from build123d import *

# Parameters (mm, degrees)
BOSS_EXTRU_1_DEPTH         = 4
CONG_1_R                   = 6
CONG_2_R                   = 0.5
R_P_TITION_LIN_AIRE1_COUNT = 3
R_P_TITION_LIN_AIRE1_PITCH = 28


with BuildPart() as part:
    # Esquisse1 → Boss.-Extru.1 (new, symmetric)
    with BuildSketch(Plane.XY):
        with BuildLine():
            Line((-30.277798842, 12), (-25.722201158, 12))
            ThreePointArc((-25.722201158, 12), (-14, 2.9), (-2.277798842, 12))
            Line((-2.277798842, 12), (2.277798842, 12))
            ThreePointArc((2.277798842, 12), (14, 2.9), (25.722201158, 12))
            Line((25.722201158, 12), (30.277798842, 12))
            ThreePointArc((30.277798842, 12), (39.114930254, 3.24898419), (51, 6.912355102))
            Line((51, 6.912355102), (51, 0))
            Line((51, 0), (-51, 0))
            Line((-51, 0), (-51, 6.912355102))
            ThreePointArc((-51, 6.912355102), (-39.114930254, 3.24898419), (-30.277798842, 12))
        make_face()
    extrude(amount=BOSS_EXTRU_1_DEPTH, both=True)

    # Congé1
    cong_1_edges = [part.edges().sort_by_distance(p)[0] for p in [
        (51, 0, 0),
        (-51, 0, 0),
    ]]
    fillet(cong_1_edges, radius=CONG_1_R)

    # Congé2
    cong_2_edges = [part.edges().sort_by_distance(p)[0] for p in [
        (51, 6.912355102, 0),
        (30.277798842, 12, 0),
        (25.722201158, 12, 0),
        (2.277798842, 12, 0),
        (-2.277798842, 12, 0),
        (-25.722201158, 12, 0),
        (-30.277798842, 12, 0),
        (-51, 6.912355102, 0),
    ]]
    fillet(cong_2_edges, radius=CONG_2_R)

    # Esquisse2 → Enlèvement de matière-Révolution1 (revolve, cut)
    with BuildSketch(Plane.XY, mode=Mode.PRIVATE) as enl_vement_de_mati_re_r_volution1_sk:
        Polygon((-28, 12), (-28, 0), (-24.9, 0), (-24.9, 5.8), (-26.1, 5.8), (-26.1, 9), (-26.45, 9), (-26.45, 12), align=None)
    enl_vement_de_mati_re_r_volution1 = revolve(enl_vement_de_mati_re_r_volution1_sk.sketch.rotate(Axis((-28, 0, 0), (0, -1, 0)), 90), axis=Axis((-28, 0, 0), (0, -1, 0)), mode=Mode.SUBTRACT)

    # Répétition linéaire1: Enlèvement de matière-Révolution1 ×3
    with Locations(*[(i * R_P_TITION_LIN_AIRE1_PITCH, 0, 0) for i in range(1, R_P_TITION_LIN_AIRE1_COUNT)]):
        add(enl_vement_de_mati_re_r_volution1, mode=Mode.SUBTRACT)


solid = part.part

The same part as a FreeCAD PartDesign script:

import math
import FreeCAD as App
import Part
import Sketcher


def edges_at(feature, points):
    """Names of the edges that pass closest to the given points."""
    edges = feature.Shape.Edges
    near = lambda p: min(range(len(edges)), key=lambda i: edges[i].distToShape(Part.Vertex(*p))[0])
    return sorted({f"Edge{near(p) + 1}" for p in points})


def add_polygon(sketch, points):
    """Adds a closed chain of lines whose ends are joined by coincident constraints."""
    first, n = sketch.GeometryCount, len(points)
    for a, b in zip(points, points[1:] + points[:1]):
        sketch.addGeometry(Part.LineSegment(App.Vector(*a, 0), App.Vector(*b, 0)), False)
    for i in range(n):
        sketch.addConstraint(Sketcher.Constraint("Coincident", first + i, 2, first + (i + 1) % n, 1))

doc = App.newDocument("Part")
body = doc.addObject("PartDesign::Body", "Body")

# Sketch on XY plane
sketch1 = doc.addObject("Sketcher::SketchObject", "Sketch")
body.addObject(sketch1)
sketch1.AttachmentSupport = (doc.XY_Plane, [""])
sketch1.MapMode = "FlatFace"
sketch1.addGeometry([
    Part.LineSegment(App.Vector(-25.7, 12, 0), App.Vector(-30.3, 12, 0)),  # 0
    Part.ArcOfCircle(Part.Circle(App.Vector(-42, 15, 0), App.Vector(0, 0, 1), 12.1), math.radians(-138), math.radians(-14)),  # 1
    Part.LineSegment(App.Vector(-51, 6.9, 0), App.Vector(-51, 0, 0)),  # 2
    Part.LineSegment(App.Vector(-51, 0, 0), App.Vector(51, 0, 0)),  # 3
    Part.LineSegment(App.Vector(51, 0, 0), App.Vector(51, 6.9, 0)),  # 4
    Part.ArcOfCircle(Part.Circle(App.Vector(42, 15, 0), App.Vector(0, 0, 1), 12.1), math.radians(-166), math.radians(-42)),  # 5
    Part.LineSegment(App.Vector(30.3, 12, 0), App.Vector(25.7, 12, 0)),  # 6
    Part.ArcOfCircle(Part.Circle(App.Vector(14, 15, 0), App.Vector(0, 0, 1), 12.1), math.radians(-166), math.radians(-14)),  # 7
    Part.LineSegment(App.Vector(2.3, 12, 0), App.Vector(-2.3, 12, 0)),  # 8
    Part.ArcOfCircle(Part.Circle(App.Vector(-14, 15, 0), App.Vector(0, 0, 1), 12.1), math.radians(-166), math.radians(-14)),  # 9
], False)
sketch1.addConstraint([
    Sketcher.Constraint("Coincident", 0, 2, 1, 2),
    Sketcher.Constraint("Coincident", 1, 1, 2, 1),
    Sketcher.Constraint("Coincident", 2, 2, 3, 1),
    Sketcher.Constraint("Coincident", 3, 2, 4, 1),
    Sketcher.Constraint("Coincident", 4, 2, 5, 2),
    Sketcher.Constraint("Coincident", 5, 1, 6, 1),
    Sketcher.Constraint("Coincident", 6, 2, 7, 2),
    Sketcher.Constraint("Coincident", 7, 1, 8, 1),
    Sketcher.Constraint("Coincident", 8, 2, 9, 2),
    Sketcher.Constraint("Coincident", 9, 1, 0, 1),
    Sketcher.Constraint("Horizontal", 0),
    Sketcher.Constraint("Vertical", 2),
    Sketcher.Constraint("Horizontal", 3),
    Sketcher.Constraint("Vertical", 4),
    Sketcher.Constraint("Horizontal", 6),
    Sketcher.Constraint("Horizontal", 8),
    Sketcher.Constraint("Equal", 1, 5),
    Sketcher.Constraint("Equal", 5, 7),
    Sketcher.Constraint("Equal", 7, 9),
    Sketcher.Constraint("Symmetric", 2, 2, 3, 2, -1, 1),
    Sketcher.Constraint("Symmetric", 1, 3, 5, 3, -2),
    Sketcher.Constraint("Symmetric", 7, 3, 9, 3, -2),
    Sketcher.Constraint("Horizontal", 5, 3, 7, 3),
    Sketcher.Constraint("Horizontal", 0, 2, 5, 1),
    Sketcher.Constraint("Horizontal", 6, 2, 7, 1),
    Sketcher.Constraint("Equal", 6, 8),
    Sketcher.Constraint("Radius", 1, 12.1),
    Sketcher.Constraint("DistanceX", 3, 1, 3, 2, 102.0),
    Sketcher.Constraint("DistanceX", 1, 3, -1, 1, 42.0),
    Sketcher.Constraint("DistanceY", -1, 1, 1, 3, 15.0),
    Sketcher.Constraint("DistanceY", -1, 1, 0, 2, 12.0),
])
pad1 = doc.addObject("PartDesign::Pad", "Pad")
body.addObject(pad1)
pad1.Profile = sketch1
pad1.Length = 8
pad1.Midplane = True
doc.recompute()

fillet = doc.addObject("PartDesign::Fillet", "Fillet")
body.addObject(fillet)
fillet.Base = (pad1, edges_at(pad1, [(51, 0, 0), (-51, 0, 0)]))
fillet.Radius = 6
doc.recompute()

fillet2 = doc.addObject("PartDesign::Fillet", "Fillet001")
body.addObject(fillet2)
fillet2.Base = (fillet, edges_at(fillet, [
    (51, 6.912, 0),
    (30.278, 12, 0),
    (25.722, 12, 0),
    (2.278, 12, 0),
    (-2.278, 12, 0),
    (-25.722, 12, 0),
    (-30.278, 12, 0),
    (-51, 6.912, 0),
]))
fillet2.Radius = 0.5

# Sketch on XY plane
sketch2 = doc.addObject("Sketcher::SketchObject", "Sketch001")
body.addObject(sketch2)
sketch2.AttachmentSupport = (doc.XY_Plane, [""])
sketch2.MapMode = "FlatFace"
add_polygon(sketch2, [(-28, 12), (-28, 0), (-24.9, 0), (-24.9, 5.8), (-26.1, 5.8), (-26.1, 9), (-26.45, 9), (-26.45, 12)])  # lines 0-7
sketch2.addGeometry(Part.LineSegment(App.Vector(-28, 12, 0), App.Vector(-28, 0, 0)), True)  # axis
sketch2.addConstraint([
    Sketcher.Constraint("Vertical", 0),
    Sketcher.Constraint("Horizontal", 1),
    Sketcher.Constraint("Vertical", 2),
    Sketcher.Constraint("Horizontal", 3),
    Sketcher.Constraint("Vertical", 4),
    Sketcher.Constraint("Horizontal", 5),
    Sketcher.Constraint("Vertical", 6),
    Sketcher.Constraint("Horizontal", 7),
    Sketcher.Constraint("Vertical", 8),
    Sketcher.Constraint("Coincident", 8, 1, 7, 2),
    Sketcher.Constraint("PointOnObject", 0, 2, -1),
    Sketcher.Constraint("PointOnObject", 8, 2, -1),
    Sketcher.Constraint("DistanceY", 0, 2, 0, 1, 12.0),
    Sketcher.Constraint("DistanceY", 6, 1, 6, 2, 3.0),
    Sketcher.Constraint("DistanceX", 1, 1, 1, 2, 3.1),
    Sketcher.Constraint("DistanceX", 3, 2, 3, 1, 1.2),
    Sketcher.Constraint("DistanceY", 2, 1, 2, 2, 5.8),
    Sketcher.Constraint("DistanceX", 0, 2, -1, 1, 28.0),
    Sketcher.Constraint("DistanceX", 5, 2, 5, 1, 0.35),
])
groove = doc.addObject("PartDesign::Groove", "Groove")
body.addObject(groove)
groove.Profile = sketch2
groove.ReferenceAxis = (sketch2, ["Axis0"])
groove.Angle = 360
doc.recompute()

linearpattern = doc.addObject("PartDesign::LinearPattern", "LinearPattern")
body.addObject(linearpattern)
linearpattern.Originals = [groove]
linearpattern.Direction = (doc.X_Axis, [""])
linearpattern.Mode = "offset"
linearpattern.Offset = 28
linearpattern.Occurrences = 3
body.Tip = linearpattern

doc.recompute()
